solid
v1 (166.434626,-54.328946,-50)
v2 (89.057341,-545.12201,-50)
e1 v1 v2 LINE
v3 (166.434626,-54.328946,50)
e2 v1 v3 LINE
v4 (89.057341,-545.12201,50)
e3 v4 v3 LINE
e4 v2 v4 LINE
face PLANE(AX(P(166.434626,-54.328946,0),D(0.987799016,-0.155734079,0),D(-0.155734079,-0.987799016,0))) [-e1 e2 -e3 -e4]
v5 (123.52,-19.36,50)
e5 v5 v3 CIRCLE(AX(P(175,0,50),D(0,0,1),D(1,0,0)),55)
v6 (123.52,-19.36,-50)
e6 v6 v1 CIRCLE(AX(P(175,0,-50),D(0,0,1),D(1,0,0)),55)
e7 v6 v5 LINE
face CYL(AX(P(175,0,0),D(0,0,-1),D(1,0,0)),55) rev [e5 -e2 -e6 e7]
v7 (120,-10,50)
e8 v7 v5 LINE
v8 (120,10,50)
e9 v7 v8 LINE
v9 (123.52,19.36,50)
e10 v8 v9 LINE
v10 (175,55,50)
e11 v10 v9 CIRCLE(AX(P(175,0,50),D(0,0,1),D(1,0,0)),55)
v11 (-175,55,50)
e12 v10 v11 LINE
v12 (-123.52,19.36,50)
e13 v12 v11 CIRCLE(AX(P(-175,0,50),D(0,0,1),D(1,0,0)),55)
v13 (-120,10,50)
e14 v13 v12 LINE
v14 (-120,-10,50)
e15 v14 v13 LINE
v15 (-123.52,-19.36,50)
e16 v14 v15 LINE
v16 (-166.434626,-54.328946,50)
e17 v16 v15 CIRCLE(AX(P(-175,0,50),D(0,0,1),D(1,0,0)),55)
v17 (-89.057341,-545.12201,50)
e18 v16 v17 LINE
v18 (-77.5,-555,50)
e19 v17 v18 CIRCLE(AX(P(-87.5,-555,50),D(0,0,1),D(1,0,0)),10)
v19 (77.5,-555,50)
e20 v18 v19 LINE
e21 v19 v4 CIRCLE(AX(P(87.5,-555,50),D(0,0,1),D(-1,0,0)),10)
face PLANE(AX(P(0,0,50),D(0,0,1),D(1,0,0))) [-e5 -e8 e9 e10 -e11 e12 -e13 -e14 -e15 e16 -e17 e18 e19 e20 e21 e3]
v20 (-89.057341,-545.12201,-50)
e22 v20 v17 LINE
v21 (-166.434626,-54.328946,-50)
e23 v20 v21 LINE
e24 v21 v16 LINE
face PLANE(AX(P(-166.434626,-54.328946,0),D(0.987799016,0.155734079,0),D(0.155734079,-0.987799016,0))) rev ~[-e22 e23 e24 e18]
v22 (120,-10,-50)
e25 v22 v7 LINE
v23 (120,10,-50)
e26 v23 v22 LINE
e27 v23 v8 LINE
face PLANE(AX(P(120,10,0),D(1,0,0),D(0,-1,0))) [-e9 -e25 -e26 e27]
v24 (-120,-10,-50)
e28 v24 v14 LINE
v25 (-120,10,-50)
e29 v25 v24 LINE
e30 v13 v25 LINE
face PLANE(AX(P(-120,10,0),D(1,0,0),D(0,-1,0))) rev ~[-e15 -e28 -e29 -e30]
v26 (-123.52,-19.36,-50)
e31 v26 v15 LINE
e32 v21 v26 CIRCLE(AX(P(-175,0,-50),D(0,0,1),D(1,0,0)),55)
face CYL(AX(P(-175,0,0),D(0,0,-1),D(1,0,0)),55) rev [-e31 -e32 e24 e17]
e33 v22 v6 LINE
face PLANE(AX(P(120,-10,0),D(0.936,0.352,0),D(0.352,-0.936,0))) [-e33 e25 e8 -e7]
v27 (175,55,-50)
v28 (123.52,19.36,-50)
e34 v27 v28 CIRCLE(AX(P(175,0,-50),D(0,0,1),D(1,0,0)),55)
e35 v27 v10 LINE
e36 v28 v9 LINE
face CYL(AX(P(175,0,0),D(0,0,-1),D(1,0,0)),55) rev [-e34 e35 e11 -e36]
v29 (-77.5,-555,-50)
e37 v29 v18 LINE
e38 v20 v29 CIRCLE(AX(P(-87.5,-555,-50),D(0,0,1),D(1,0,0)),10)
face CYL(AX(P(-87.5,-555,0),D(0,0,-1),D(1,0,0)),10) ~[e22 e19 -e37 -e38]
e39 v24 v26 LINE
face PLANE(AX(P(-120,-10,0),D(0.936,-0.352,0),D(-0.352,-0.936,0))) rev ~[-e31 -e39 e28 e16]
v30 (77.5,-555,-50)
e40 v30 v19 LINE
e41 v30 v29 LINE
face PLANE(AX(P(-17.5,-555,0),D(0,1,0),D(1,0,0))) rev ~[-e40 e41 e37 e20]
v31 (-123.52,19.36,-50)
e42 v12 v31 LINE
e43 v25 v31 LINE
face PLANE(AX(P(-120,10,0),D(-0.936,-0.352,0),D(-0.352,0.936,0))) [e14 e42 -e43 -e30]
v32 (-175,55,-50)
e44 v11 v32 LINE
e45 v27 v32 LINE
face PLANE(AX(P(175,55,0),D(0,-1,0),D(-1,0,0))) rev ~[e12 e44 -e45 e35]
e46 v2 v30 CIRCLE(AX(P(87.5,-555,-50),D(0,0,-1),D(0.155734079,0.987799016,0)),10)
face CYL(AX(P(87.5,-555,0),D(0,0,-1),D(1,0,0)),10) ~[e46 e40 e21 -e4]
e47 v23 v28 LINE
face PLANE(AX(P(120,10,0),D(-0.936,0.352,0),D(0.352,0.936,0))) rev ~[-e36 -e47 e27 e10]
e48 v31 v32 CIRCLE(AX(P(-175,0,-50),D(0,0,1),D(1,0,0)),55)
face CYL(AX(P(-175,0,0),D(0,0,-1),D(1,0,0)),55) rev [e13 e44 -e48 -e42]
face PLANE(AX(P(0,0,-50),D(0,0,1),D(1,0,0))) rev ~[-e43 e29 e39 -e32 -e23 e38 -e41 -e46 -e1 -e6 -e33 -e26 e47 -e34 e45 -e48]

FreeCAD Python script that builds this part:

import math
import FreeCAD as App
import Part
import Sketcher
Q = App.Units.Quantity

doc = App.newDocument("Part")
body = doc.addObject("PartDesign::Body", "Body")

# Sketch on XY plane
sketch1 = body.newObject("Sketcher::SketchObject", "Sketch")
sketch1.AttachmentSupport = (doc.getObject("XY_Plane"), [""])
sketch1.MapMode = "FlatFace"
sketch1.addGeometry(Part.LineSegment(App.Vector(-120, 10, 0), App.Vector(-120, -10, 0)), False)
sketch1.addGeometry(Part.LineSegment(App.Vector(-120, -10, 0), App.Vector(-124, -19, 0)), False)
sketch1.addGeometry(Part.ArcOfCircle(Part.Circle(App.Vector(-175, 0, 0), App.Vector(0, 0, 1), 55), math.radians(-81), math.radians(-21)), False)
sketch1.addGeometry(Part.LineSegment(App.Vector(-166, -54, 0), App.Vector(-89, -545, 0)), False)
sketch1.addGeometry(Part.ArcOfCircle(Part.Circle(App.Vector(-88, -555, 0), App.Vector(0, 0, 1), 10), math.radians(99), math.radians(360)), False)
sketch1.addGeometry(Part.LineSegment(App.Vector(-78, -555, 0), App.Vector(78, -555, 0)), False)
sketch1.addGeometry(Part.ArcOfCircle(Part.Circle(App.Vector(88, -555, 0), App.Vector(0, 0, 1), 10), math.radians(180), math.radians(441)), False)
sketch1.addGeometry(Part.LineSegment(App.Vector(89, -545, 0), App.Vector(166, -54, 0)), False)
sketch1.addGeometry(Part.ArcOfCircle(Part.Circle(App.Vector(175, 0, 0), App.Vector(0, 0, 1), 55), math.radians(-159), math.radians(-99)), False)
sketch1.addGeometry(Part.LineSegment(App.Vector(124, -19, 0), App.Vector(120, -10, 0)), False)
sketch1.addGeometry(Part.LineSegment(App.Vector(120, -10, 0), App.Vector(120, 10, 0)), False)
sketch1.addGeometry(Part.LineSegment(App.Vector(120, 10, 0), App.Vector(124, 19, 0)), False)
sketch1.addGeometry(Part.ArcOfCircle(Part.Circle(App.Vector(175, 0, 0), App.Vector(0, 0, 1), 55), math.radians(90), math.radians(159)), False)
sketch1.addGeometry(Part.LineSegment(App.Vector(175, 55, 0), App.Vector(-175, 55, 0)), False)
sketch1.addGeometry(Part.ArcOfCircle(Part.Circle(App.Vector(-175, 0, 0), App.Vector(0, 0, 1), 55), math.radians(21), math.radians(90)), False)
sketch1.addGeometry(Part.LineSegment(App.Vector(-124, 19, 0), App.Vector(-120, 10, 0)), False)
sketch1.addConstraint(Sketcher.Constraint("Coincident", 0, 2, 1, 1))
sketch1.addConstraint(Sketcher.Constraint("Tangent", 1, 2, 2, 2))
sketch1.addConstraint(Sketcher.Constraint("Coincident", 2, 1, 3, 1))
sketch1.addConstraint(Sketcher.Constraint("Coincident", 3, 2, 4, 1))
sketch1.addConstraint(Sketcher.Constraint("Coincident", 4, 2, 5, 1))
sketch1.addConstraint(Sketcher.Constraint("Coincident", 5, 2, 6, 1))
sketch1.addConstraint(Sketcher.Constraint("Coincident", 6, 2, 7, 1))
sketch1.addConstraint(Sketcher.Constraint("Coincident", 7, 2, 8, 2))
sketch1.addConstraint(Sketcher.Constraint("Tangent", 8, 1, 9, 1))
sketch1.addConstraint(Sketcher.Constraint("Coincident", 9, 2, 10, 1))
sketch1.addConstraint(Sketcher.Constraint("Coincident", 10, 2, 11, 1))
sketch1.addConstraint(Sketcher.Constraint("Tangent", 11, 2, 12, 2))
sketch1.addConstraint(Sketcher.Constraint("Tangent", 12, 1, 13, 1))
sketch1.addConstraint(Sketcher.Constraint("Tangent", 13, 2, 14, 2))
sketch1.addConstraint(Sketcher.Constraint("Tangent", 14, 1, 15, 1))
sketch1.addConstraint(Sketcher.Constraint("Coincident", 15, 2, 0, 1))
sketch1.addConstraint(Sketcher.Constraint("Vertical", 0))
sketch1.addConstraint(Sketcher.Constraint("Horizontal", 5))
sketch1.addConstraint(Sketcher.Constraint("Vertical", 10))
sketch1.addConstraint(Sketcher.Constraint("Horizontal", 13))
sketch1.addConstraint(Sketcher.Constraint("Coincident", 12, 3, 8, 3))
sketch1.addConstraint(Sketcher.Constraint("Coincident", 14, 3, 2, 3))
sketch1.addConstraint(Sketcher.Constraint("Equal", 4, 6))
sketch1.addConstraint(Sketcher.Constraint("Equal", 2, 8))
sketch1.addConstraint(Sketcher.Constraint("Equal", 8, 12))
sketch1.addConstraint(Sketcher.Constraint("Equal", 12, 14))
sketch1.addConstraint(Sketcher.Constraint("Symmetric", 2, 3, 8, 3, -1, 1))
sketch1.addConstraint(Sketcher.Constraint("Symmetric", 0, 2, 10, 2, -1, 1))
sketch1.addConstraint(Sketcher.Constraint("Symmetric", 4, 3, 6, 3, -2))
sketch1.addConstraint(Sketcher.Constraint("Parallel", 9, 15))
sketch1.addConstraint(Sketcher.Constraint("Horizontal", 6, 3, 4, 2))
sketch1.addConstraint(Sketcher.Constraint("Horizontal", 3, 2, 6, 2))
sketch1.addConstraint(Sketcher.Constraint("Horizontal", 2, 1, 7, 2))
sketch1.addConstraint(Sketcher.Constraint("Horizontal", 1, 2, 8, 1))
sketch1.addConstraint(Sketcher.Constraint("Radius", 2, Q("55 mm")))
sketch1.addConstraint(Sketcher.Constraint("Radius", 4, Q("10 mm")))
sketch1.addConstraint(Sketcher.Constraint("DistanceX", 13, 2, 13, 1, Q("350 mm")))
sketch1.addConstraint(Sketcher.Constraint("DistanceY", 0, 2, 0, 1, Q("20 mm")))
sketch1.addConstraint(Sketcher.Constraint("DistanceX", 4, 3, 6, 3, Q("175 mm")))
sketch1.addConstraint(Sketcher.Constraint("Distance", 1, Q("10 mm")))
sketch1.addConstraint(Sketcher.Constraint("DistanceY", 4, 3, -1, 1, Q("555 mm")))
sketch1.addConstraint(Sketcher.Constraint("Angle", 3, Q("-81.0406 deg")))
sketch1.addConstraint(Sketcher.Constraint("DistanceY", 2, 1, -1, 1, Q("54.329 mm")))
pad1 = body.newObject("PartDesign::Pad", "Pad")
pad1.Profile = sketch1
pad1.Length = 100
pad1.Midplane = True

doc.recompute()
